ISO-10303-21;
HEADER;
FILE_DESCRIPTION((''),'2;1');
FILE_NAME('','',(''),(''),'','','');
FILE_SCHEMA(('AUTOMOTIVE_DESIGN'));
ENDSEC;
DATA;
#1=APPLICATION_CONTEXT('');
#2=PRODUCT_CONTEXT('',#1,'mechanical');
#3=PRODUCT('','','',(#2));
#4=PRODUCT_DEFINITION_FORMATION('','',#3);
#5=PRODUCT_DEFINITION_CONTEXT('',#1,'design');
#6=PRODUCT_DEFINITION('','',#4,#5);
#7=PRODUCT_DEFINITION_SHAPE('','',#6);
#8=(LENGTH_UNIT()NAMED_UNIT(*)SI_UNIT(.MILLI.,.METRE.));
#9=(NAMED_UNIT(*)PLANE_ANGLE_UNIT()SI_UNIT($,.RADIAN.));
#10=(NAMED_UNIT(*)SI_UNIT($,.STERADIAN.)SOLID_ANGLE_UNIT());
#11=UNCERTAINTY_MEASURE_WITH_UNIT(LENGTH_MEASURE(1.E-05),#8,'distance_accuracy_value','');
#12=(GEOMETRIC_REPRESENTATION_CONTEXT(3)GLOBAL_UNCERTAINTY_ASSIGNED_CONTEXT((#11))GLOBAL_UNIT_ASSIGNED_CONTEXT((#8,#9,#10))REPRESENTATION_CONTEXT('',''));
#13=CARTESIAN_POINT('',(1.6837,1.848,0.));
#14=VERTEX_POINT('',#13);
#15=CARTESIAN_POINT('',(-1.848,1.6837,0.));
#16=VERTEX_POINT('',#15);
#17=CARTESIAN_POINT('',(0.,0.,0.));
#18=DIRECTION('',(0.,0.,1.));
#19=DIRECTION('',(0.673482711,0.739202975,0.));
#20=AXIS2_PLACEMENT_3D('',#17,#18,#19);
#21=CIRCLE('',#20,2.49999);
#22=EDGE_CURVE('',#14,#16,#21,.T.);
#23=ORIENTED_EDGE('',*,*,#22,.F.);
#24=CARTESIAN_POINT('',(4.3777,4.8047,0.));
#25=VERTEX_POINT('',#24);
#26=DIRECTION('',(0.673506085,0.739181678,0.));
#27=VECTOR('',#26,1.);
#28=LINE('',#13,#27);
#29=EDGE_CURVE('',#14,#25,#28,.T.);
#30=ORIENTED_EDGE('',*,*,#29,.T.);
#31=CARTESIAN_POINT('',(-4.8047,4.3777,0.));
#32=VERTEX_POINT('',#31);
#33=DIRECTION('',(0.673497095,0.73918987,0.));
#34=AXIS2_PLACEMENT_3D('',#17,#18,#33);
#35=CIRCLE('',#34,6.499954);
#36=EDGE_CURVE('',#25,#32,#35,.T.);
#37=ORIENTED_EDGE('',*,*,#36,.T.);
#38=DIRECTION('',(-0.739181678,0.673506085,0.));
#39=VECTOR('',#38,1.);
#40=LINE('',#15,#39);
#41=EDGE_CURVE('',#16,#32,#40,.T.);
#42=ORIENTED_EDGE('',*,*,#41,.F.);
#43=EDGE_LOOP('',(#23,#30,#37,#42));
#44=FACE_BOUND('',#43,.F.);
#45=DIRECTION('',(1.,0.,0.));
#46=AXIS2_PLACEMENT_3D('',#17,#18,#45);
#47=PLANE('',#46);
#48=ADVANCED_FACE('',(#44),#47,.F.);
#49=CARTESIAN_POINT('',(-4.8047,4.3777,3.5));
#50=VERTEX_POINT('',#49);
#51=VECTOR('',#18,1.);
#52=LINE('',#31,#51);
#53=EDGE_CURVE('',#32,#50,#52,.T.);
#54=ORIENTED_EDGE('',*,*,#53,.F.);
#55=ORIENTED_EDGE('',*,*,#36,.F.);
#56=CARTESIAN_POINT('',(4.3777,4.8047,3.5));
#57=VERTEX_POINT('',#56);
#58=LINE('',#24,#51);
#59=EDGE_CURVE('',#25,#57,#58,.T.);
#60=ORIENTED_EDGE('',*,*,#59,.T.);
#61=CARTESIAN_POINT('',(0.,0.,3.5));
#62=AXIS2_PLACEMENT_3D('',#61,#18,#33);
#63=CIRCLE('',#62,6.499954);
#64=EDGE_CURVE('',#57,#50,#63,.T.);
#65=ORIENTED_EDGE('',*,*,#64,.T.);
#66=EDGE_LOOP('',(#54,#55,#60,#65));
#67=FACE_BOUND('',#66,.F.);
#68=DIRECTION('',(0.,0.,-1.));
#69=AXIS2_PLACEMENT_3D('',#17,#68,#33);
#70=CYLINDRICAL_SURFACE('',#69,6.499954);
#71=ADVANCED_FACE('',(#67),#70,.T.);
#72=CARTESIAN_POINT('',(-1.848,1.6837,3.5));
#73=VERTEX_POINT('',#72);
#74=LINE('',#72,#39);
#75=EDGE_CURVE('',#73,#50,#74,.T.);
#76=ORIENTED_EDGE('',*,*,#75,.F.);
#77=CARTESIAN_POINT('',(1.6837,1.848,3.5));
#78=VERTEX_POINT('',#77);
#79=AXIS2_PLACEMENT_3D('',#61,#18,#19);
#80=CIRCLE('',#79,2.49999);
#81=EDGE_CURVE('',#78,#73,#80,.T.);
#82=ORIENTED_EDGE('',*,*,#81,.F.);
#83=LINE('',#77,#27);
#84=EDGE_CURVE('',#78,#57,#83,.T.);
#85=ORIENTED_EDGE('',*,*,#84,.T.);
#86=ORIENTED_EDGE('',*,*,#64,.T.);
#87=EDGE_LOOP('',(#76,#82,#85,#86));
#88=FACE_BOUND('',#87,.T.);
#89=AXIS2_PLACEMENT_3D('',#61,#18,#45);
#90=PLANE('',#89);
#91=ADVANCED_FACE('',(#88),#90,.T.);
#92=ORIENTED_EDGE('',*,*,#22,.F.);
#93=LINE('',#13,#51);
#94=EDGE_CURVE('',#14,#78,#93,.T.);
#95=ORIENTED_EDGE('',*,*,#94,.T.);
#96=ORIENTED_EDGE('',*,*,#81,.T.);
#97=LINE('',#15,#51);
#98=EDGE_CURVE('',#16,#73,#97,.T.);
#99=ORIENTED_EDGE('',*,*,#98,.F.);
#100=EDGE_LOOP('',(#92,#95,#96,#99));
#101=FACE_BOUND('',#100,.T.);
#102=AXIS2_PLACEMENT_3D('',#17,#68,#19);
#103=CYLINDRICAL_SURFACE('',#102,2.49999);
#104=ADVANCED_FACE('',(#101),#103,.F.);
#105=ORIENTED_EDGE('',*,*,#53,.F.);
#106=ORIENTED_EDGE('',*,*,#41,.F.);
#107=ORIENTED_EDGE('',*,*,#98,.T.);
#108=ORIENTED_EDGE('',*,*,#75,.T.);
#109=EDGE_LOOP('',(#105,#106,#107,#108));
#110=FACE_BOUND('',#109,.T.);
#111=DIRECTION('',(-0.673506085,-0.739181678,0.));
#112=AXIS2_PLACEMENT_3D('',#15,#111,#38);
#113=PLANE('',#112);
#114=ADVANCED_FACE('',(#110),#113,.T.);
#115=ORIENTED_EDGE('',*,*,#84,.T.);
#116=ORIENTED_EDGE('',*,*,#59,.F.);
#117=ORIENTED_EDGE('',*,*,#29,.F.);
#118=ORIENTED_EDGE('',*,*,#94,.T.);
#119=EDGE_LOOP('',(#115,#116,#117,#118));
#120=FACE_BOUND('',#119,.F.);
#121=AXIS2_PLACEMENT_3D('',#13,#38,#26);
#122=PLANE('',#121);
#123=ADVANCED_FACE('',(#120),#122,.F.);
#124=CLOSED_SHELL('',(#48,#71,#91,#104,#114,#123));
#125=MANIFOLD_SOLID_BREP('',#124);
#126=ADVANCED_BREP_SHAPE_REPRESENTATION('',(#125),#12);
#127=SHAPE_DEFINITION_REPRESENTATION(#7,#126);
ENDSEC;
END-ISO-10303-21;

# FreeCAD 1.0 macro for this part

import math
import FreeCAD as App
import Part
import Sketcher
Q = App.Units.Quantity

doc = App.newDocument("Part")
params = doc.addObject("Spreadsheet::Sheet", "Params")
for row, (alias, value) in enumerate([
    ("sketch1_radius", "2.5 mm"),
    ("sketch1_radius2", "6.5 mm"),
    ("pad1_length", "3.5 mm"),
], start=1):
    params.set(f"A{row}", alias)
    params.set(f"B{row}", "=" + value)
    params.setAlias(f"B{row}", alias)

body = doc.addObject("PartDesign::Body", "Body")

sketch1 = body.newObject("Sketcher::SketchObject", "Sketch")
sketch1.AttachmentSupport = (doc.getObject("XY_Plane"), [""])
sketch1.MapMode = "FlatFace"
sketch1.addGeometry(Part.ArcOfCircle(Part.Circle(App.Vector(0, 0, 0), App.Vector(0, 0, 1), 2.5), math.radians(48), math.radians(138)), False)
sketch1.addGeometry(Part.LineSegment(App.Vector(1.7, 1.8, 0), App.Vector(4.4, 4.8, 0)), False)
sketch1.addGeometry(Part.ArcOfCircle(Part.Circle(App.Vector(0, 0, 0), App.Vector(0, 0, 1), 6.5), math.radians(48), math.radians(138)), False)
sketch1.addGeometry(Part.LineSegment(App.Vector(-4.8, 4.4, 0), App.Vector(-1.8, 1.7, 0)), False)
sketch1.addConstraint(Sketcher.Constraint("Coincident", 0, 1, 1, 1))
sketch1.addConstraint(Sketcher.Constraint("Coincident", 1, 2, 2, 1))
sketch1.addConstraint(Sketcher.Constraint("Coincident", 2, 2, 3, 1))
sketch1.addConstraint(Sketcher.Constraint("Coincident", 3, 2, 0, 2))
sketch1.addConstraint(Sketcher.Constraint("Coincident", 0, 3, -1, 1))
sketch1.addConstraint(Sketcher.Constraint("Coincident", 2, 3, -1, 1))
sketch1.addConstraint(Sketcher.Constraint("Perpendicular", 1, 3))
sketch1.addConstraint(Sketcher.Constraint("Radius", 0, Q("2.5 mm")))
sketch1.addConstraint(Sketcher.Constraint("Radius", 2, Q("6.5 mm")))
sketch1.addConstraint(Sketcher.Constraint("DistanceY", -1, 1, 0, 1, Q("1.848 mm")))
sketch1.addConstraint(Sketcher.Constraint("DistanceX", 3, 2, -1, 1, Q("1.848 mm")))
sketch1.addConstraint(Sketcher.Constraint("DistanceX", 0, 1, 1, 2, Q("2.694 mm")))
sketch1.setExpression("Constraints[7]", "Params.sketch1_radius")
sketch1.setExpression("Constraints[8]", "Params.sketch1_radius2")
pad1 = body.newObject("PartDesign::Pad", "Pad")
pad1.Profile = sketch1
pad1.setExpression("Length", "Params.pad1_length")

doc.recompute()
